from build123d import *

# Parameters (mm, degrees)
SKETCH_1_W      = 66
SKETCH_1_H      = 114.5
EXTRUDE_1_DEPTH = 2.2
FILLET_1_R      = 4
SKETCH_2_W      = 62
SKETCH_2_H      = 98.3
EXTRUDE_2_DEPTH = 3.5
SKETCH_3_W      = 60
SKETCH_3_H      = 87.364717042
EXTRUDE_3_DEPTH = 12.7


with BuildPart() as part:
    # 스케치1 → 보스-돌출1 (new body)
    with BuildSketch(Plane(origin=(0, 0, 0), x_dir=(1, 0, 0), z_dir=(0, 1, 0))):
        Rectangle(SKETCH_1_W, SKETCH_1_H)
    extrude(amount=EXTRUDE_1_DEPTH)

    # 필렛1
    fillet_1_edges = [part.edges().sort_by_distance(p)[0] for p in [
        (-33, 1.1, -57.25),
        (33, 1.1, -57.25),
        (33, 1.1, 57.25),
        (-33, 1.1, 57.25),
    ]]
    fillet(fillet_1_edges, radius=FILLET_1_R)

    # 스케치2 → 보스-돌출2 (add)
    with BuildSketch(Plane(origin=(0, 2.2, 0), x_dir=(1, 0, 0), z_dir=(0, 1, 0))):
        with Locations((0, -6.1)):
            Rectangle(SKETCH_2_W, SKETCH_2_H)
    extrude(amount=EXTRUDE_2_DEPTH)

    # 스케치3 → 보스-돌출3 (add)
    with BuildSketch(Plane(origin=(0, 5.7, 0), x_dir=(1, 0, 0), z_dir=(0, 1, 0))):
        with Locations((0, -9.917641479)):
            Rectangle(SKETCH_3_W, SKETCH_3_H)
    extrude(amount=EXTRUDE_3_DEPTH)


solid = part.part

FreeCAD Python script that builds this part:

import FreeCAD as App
import Part
import Sketcher
from FreeCAD import Vector


def edges_at(feature, points):
    """Names of the edges that pass closest to the given points."""
    edges = feature.Shape.Edges
    near = lambda p: min(range(len(edges)), key=lambda i: edges[i].distToShape(Part.Vertex(*p))[0])
    return sorted({f"Edge{near(p) + 1}" for p in points})

doc = App.newDocument("Part")
body = doc.addObject("PartDesign::Body", "Body")

sketch1 = doc.addObject("Sketcher::SketchObject", "Sketch")
body.addObject(sketch1)
sketch1.AttachmentSupport = (doc.XZ_Plane, [""])
sketch1.MapMode = "FlatFace"
sketch1.addGeometry([
    Part.LineSegment(Vector(-33, -57.25, 0), Vector(-33, 57.25, 0)),
    Part.LineSegment(Vector(-33, 57.25, 0), Vector(33, 57.25, 0)),
    Part.LineSegment(Vector(33, 57.25, 0), Vector(33, -57.25, 0)),
    Part.LineSegment(Vector(33, -57.25, 0), Vector(-33, -57.25, 0)),
], False)
sketch1.addConstraint([
    Sketcher.Constraint("Coincident", 0, 2, 1, 1),
    Sketcher.Constraint("Coincident", 1, 2, 2, 1),
    Sketcher.Constraint("Coincident", 2, 2, 3, 1),
    Sketcher.Constraint("Coincident", 3, 2, 0, 1),
    Sketcher.Constraint("Vertical", 0),
    Sketcher.Constraint("Horizontal", 1),
    Sketcher.Constraint("Vertical", 2),
    Sketcher.Constraint("Horizontal", 3),
    Sketcher.Constraint("Symmetric", 0, 2, 2, 2, -1, 1),
    Sketcher.Constraint("DistanceX", 1, 1, 1, 2, 66.0),
    Sketcher.Constraint("DistanceY", 0, 1, 0, 2, 114.5),
])
pad1 = doc.addObject("PartDesign::Pad", "Pad")
body.addObject(pad1)
pad1.Profile = sketch1
pad1.Length = 2.2
pad1.Reversed = True
doc.recompute()

fillet = doc.addObject("PartDesign::Fillet", "Fillet")
body.addObject(fillet)
fillet.Base = (pad1, edges_at(pad1, [
    (-33, 1.1, -57.25),
    (33, 1.1, -57.25),
    (33, 1.1, 57.25),
    (-33, 1.1, 57.25),
]))
fillet.Radius = 4

sketch2 = doc.addObject("Sketcher::SketchObject", "Sketch001")
body.addObject(sketch2)
sketch2.AttachmentSupport = (doc.XZ_Plane, [""])
sketch2.MapMode = "FlatFace"
sketch2.AttachmentOffset = App.Placement(Vector(0, 0, -2.2), App.Rotation())
sketch2.addGeometry([
    Part.LineSegment(Vector(-31, -43.05, 0), Vector(-31, 55.25, 0)),
    Part.LineSegment(Vector(-31, 55.25, 0), Vector(31, 55.25, 0)),
    Part.LineSegment(Vector(31, 55.25, 0), Vector(31, -43.05, 0)),
    Part.LineSegment(Vector(31, -43.05, 0), Vector(-31, -43.05, 0)),
], False)
sketch2.addConstraint([
    Sketcher.Constraint("Coincident", 0, 2, 1, 1),
    Sketcher.Constraint("Coincident", 1, 2, 2, 1),
    Sketcher.Constraint("Coincident", 2, 2, 3, 1),
    Sketcher.Constraint("Coincident", 3, 2, 0, 1),
    Sketcher.Constraint("Vertical", 0),
    Sketcher.Constraint("Horizontal", 1),
    Sketcher.Constraint("Vertical", 2),
    Sketcher.Constraint("Horizontal", 3),
    Sketcher.Constraint("DistanceX", 1, 1, 1, 2, 62.0),
    Sketcher.Constraint("DistanceY", 0, 1, 0, 2, 98.3),
    Sketcher.Constraint("DistanceX", 0, 2, -1, 1, 31.0),
    Sketcher.Constraint("DistanceY", -1, 1, 0, 2, 55.25),
])
pad2 = doc.addObject("PartDesign::Pad", "Pad001")
body.addObject(pad2)
pad2.Profile = sketch2
pad2.Length = 3.5
pad2.Reversed = True

sketch3 = doc.addObject("Sketcher::SketchObject", "Sketch002")
body.addObject(sketch3)
sketch3.AttachmentSupport = (doc.XZ_Plane, [""])
sketch3.MapMode = "FlatFace"
sketch3.AttachmentOffset = App.Placement(Vector(0, 0, -5.7), App.Rotation())
sketch3.addGeometry([
    Part.LineSegment(Vector(-30, -33.764717, 0), Vector(-30, 53.6, 0)),
    Part.LineSegment(Vector(-30, 53.6, 0), Vector(30, 53.6, 0)),
    Part.LineSegment(Vector(30, 53.6, 0), Vector(30, -33.764717, 0)),
    Part.LineSegment(Vector(30, -33.764717, 0), Vector(-30, -33.764717, 0)),
], False)
sketch3.addConstraint([
    Sketcher.Constraint("Coincident", 0, 2, 1, 1),
    Sketcher.Constraint("Coincident", 1, 2, 2, 1),
    Sketcher.Constraint("Coincident", 2, 2, 3, 1),
    Sketcher.Constraint("Coincident", 3, 2, 0, 1),
    Sketcher.Constraint("Vertical", 0),
    Sketcher.Constraint("Horizontal", 1),
    Sketcher.Constraint("Vertical", 2),
    Sketcher.Constraint("Horizontal", 3),
    Sketcher.Constraint("DistanceX", 1, 1, 1, 2, 60.0),
    Sketcher.Constraint("DistanceX", 0, 2, -1, 1, 30.0),
    Sketcher.Constraint("DistanceY", -1, 1, 0, 2, 53.6),
    Sketcher.Constraint("DistanceY", 0, 1, 0, 2, 87.364717),
])
pad3 = doc.addObject("PartDesign::Pad", "Pad002")
body.addObject(pad3)
pad3.Profile = sketch3
pad3.Length = 12.7
pad3.Reversed = True

doc.recompute()
